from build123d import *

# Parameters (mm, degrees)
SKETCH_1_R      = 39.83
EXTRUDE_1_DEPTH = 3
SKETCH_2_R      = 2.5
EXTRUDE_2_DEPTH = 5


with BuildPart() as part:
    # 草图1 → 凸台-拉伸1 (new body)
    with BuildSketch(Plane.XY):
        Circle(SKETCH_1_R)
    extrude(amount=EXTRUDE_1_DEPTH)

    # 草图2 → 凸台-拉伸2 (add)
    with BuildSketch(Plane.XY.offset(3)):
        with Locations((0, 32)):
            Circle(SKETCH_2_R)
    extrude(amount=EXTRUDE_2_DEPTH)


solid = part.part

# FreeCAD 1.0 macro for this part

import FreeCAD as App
import Part
import Sketcher

doc = App.newDocument("Part")
body = doc.addObject("PartDesign::Body", "Body")

# Sketch on XY plane
sketch1 = body.newObject("Sketcher::SketchObject", "Sketch")
sketch1.AttachmentSupport = (doc.getObject("XY_Plane"), [""])
sketch1.MapMode = "FlatFace"
sketch1.addGeometry(Part.Circle(App.Vector(0, 0, 0), App.Vector(0, 0, 1), 40), False)
sketch1.addConstraint([
    Sketcher.Constraint("Coincident", 0, 3, -1, 1),
    Sketcher.Constraint("Diameter", 0, 79.66),
])
pad1 = body.newObject("PartDesign::Pad", "Pad")
pad1.Profile = sketch1
pad1.Length = 3

# Sketch on XY plane
sketch2 = body.newObject("Sketcher::SketchObject", "Sketch001")
sketch2.AttachmentSupport = (doc.getObject("XY_Plane"), [""])
sketch2.MapMode = "FlatFace"
sketch2.AttachmentOffset = App.Placement(App.Vector(0, 0, 3), App.Rotation())
sketch2.addGeometry(Part.Circle(App.Vector(0, 32, 0), App.Vector(0, 0, 1), 2.5), False)
sketch2.addConstraint([
    Sketcher.Constraint("PointOnObject", 0, 3, -2),
    Sketcher.Constraint("Diameter", 0, 5.0),
    Sketcher.Constraint("DistanceY", -1, 1, 0, 3, 32.0),
])
pad2 = body.newObject("PartDesign::Pad", "Pad001")
pad2.Profile = sketch2
pad2.Length = 5

doc.recompute()
